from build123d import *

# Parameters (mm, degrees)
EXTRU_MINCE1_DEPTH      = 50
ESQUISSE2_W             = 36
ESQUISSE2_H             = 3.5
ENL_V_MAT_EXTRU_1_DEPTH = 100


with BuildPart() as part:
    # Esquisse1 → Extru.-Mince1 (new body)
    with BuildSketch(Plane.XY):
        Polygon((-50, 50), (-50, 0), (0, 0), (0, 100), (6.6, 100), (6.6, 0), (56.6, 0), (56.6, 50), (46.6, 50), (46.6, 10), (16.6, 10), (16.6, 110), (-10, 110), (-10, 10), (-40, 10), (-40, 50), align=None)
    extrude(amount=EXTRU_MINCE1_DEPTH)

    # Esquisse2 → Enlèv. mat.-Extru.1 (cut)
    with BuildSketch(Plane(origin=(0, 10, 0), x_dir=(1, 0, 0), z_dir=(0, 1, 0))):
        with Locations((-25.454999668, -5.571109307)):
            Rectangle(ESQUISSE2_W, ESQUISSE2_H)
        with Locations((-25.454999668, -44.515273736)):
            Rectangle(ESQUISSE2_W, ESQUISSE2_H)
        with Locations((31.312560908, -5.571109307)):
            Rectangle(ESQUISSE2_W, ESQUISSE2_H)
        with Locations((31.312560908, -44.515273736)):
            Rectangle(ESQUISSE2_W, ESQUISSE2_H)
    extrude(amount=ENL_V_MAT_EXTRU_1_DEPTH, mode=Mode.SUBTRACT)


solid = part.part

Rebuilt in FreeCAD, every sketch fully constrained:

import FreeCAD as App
import Part
import Sketcher

doc = App.newDocument("Part")
params = doc.addObject("Spreadsheet::Sheet", "Params")
for row, (alias, value) in enumerate([
    ("sketch1_width", "50 mm"),
    ("sketch1_width2", "10 mm"),
    ("sketch1_width3", "30 mm"),
    ("sketch1_height", "100 mm"),
    ("sketch1_height2", "40 mm"),
    ("pad1_length", "50 mm"),
    ("sketch2_width", "36 mm"),
    ("sketch2_height", "3.5 mm"),
    ("pocket1_length", "100 mm"),
], start=1):
    params.set(f"A{row}", alias)
    params.set(f"B{row}", "=" + value)
    params.setAlias(f"B{row}", alias)

body = doc.addObject("PartDesign::Body", "Body")

sketch1 = body.newObject("Sketcher::SketchObject", "Sketch")
sketch1.AttachmentSupport = (doc.getObject("XY_Plane"), [""])
sketch1.MapMode = "FlatFace"
sketch1.addGeometry([
    Part.LineSegment(App.Vector(-50, 50, 0), App.Vector(-50, 0, 0)),
    Part.LineSegment(App.Vector(-50, 0, 0), App.Vector(0, 0, 0)),
    Part.LineSegment(App.Vector(0, 0, 0), App.Vector(0, 100, 0)),
    Part.LineSegment(App.Vector(0, 100, 0), App.Vector(7, 100, 0)),
    Part.LineSegment(App.Vector(7, 100, 0), App.Vector(7, 0, 0)),
    Part.LineSegment(App.Vector(7, 0, 0), App.Vector(57, 0, 0)),
    Part.LineSegment(App.Vector(57, 0, 0), App.Vector(57, 50, 0)),
    Part.LineSegment(App.Vector(57, 50, 0), App.Vector(47, 50, 0)),
    Part.LineSegment(App.Vector(47, 50, 0), App.Vector(47, 10, 0)),
    Part.LineSegment(App.Vector(47, 10, 0), App.Vector(17, 10, 0)),
    Part.LineSegment(App.Vector(17, 10, 0), App.Vector(17, 110, 0)),
    Part.LineSegment(App.Vector(17, 110, 0), App.Vector(-10, 110, 0)),
    Part.LineSegment(App.Vector(-10, 110, 0), App.Vector(-10, 10, 0)),
    Part.LineSegment(App.Vector(-10, 10, 0), App.Vector(-40, 10, 0)),
    Part.LineSegment(App.Vector(-40, 10, 0), App.Vector(-40, 50, 0)),
    Part.LineSegment(App.Vector(-40, 50, 0), App.Vector(-50, 50, 0)),
], False)
sketch1.addConstraint([
    Sketcher.Constraint("Coincident", 0, 2, 1, 1),
    Sketcher.Constraint("Coincident", 1, 2, 2, 1),
    Sketcher.Constraint("Coincident", 2, 2, 3, 1),
    Sketcher.Constraint("Coincident", 3, 2, 4, 1),
    Sketcher.Constraint("Coincident", 4, 2, 5, 1),
    Sketcher.Constraint("Coincident", 5, 2, 6, 1),
    Sketcher.Constraint("Coincident", 6, 2, 7, 1),
    Sketcher.Constraint("Coincident", 7, 2, 8, 1),
    Sketcher.Constraint("Coincident", 8, 2, 9, 1),
    Sketcher.Constraint("Coincident", 9, 2, 10, 1),
    Sketcher.Constraint("Coincident", 10, 2, 11, 1),
    Sketcher.Constraint("Coincident", 11, 2, 12, 1),
    Sketcher.Constraint("Coincident", 12, 2, 13, 1),
    Sketcher.Constraint("Coincident", 13, 2, 14, 1),
    Sketcher.Constraint("Coincident", 14, 2, 15, 1),
    Sketcher.Constraint("Coincident", 15, 2, 0, 1),
    Sketcher.Constraint("Vertical", 0),
    Sketcher.Constraint("Horizontal", 1),
    Sketcher.Constraint("Vertical", 2),
    Sketcher.Constraint("Horizontal", 3),
    Sketcher.Constraint("Vertical", 4),
    Sketcher.Constraint("Horizontal", 5),
    Sketcher.Constraint("Vertical", 6),
    Sketcher.Constraint("Horizontal", 7),
    Sketcher.Constraint("Vertical", 8),
    Sketcher.Constraint("Horizontal", 9),
    Sketcher.Constraint("Vertical", 10),
    Sketcher.Constraint("Horizontal", 11),
    Sketcher.Constraint("Vertical", 12),
    Sketcher.Constraint("Horizontal", 13),
    Sketcher.Constraint("Vertical", 14),
    Sketcher.Constraint("Horizontal", 15),
    Sketcher.Constraint("Coincident", 1, 2, -1, 1),
    Sketcher.Constraint("PointOnObject", 4, 2, -1),
    Sketcher.Constraint("Horizontal", 9, 2, 12, 2),
    Sketcher.Constraint("Horizontal", 7, 2, 14, 2),
    Sketcher.Constraint("Equal", 1, 5),
    Sketcher.Constraint("Equal", 9, 13),
    Sketcher.Constraint("Equal", 7, 15),
    Sketcher.Constraint("Equal", 5, 0),
    Sketcher.Constraint("Equal", 4, 10),
    Sketcher.Constraint("DistanceX", 1, 1, 1, 2, 50.0),
    Sketcher.Constraint("DistanceX", 7, 2, 7, 1, 10.0),
    Sketcher.Constraint("DistanceX", 9, 2, 9, 1, 30.0),
    Sketcher.Constraint("DistanceY", 2, 1, 2, 2, 100.0),
    Sketcher.Constraint("DistanceY", 8, 2, 8, 1, 40.0),
    Sketcher.Constraint("DistanceX", 3, 1, 3, 2, 6.6),
])
sketch1.setExpression("Constraints[41]", "Params.sketch1_width")
sketch1.setExpression("Constraints[42]", "Params.sketch1_width2")
sketch1.setExpression("Constraints[43]", "Params.sketch1_width3")
sketch1.setExpression("Constraints[44]", "Params.sketch1_height")
sketch1.setExpression("Constraints[45]", "Params.sketch1_height2")
pad1 = body.newObject("PartDesign::Pad", "Pad")
pad1.Profile = sketch1
pad1.setExpression("Length", "Params.pad1_length")

sketch2 = body.newObject("Sketcher::SketchObject", "Sketch001")
sketch2.AttachmentSupport = (doc.getObject("XZ_Plane"), [""])
sketch2.MapMode = "FlatFace"
sketch2.AttachmentOffset = App.Placement(App.Vector(0, 0, -10), App.Rotation())
sketch2.addGeometry([
    Part.LineSegment(App.Vector(-43.5, 3.8, 0), App.Vector(-43.5, 7.3, 0)),
    Part.LineSegment(App.Vector(-43.5, 7.3, 0), App.Vector(-7.5, 7.3, 0)),
    Part.LineSegment(App.Vector(-7.5, 7.3, 0), App.Vector(-7.5, 3.8, 0)),
    Part.LineSegment(App.Vector(-7.5, 3.8, 0), App.Vector(-43.5, 3.8, 0)),
    Part.LineSegment(App.Vector(-43.5, 42.8, 0), App.Vector(-43.5, 46.3, 0)),
    Part.LineSegment(App.Vector(-43.5, 46.3, 0), App.Vector(-7.5, 46.3, 0)),
    Part.LineSegment(App.Vector(-7.5, 46.3, 0), App.Vector(-7.5, 42.8, 0)),
    Part.LineSegment(App.Vector(-7.5, 42.8, 0), App.Vector(-43.5, 42.8, 0)),
    Part.LineSegment(App.Vector(13.3, 3.8, 0), App.Vector(13.3, 7.3, 0)),
    Part.LineSegment(App.Vector(13.3, 7.3, 0), App.Vector(49.3, 7.3, 0)),
    Part.LineSegment(App.Vector(49.3, 7.3, 0), App.Vector(49.3, 3.8, 0)),
    Part.LineSegment(App.Vector(49.3, 3.8, 0), App.Vector(13.3, 3.8, 0)),
    Part.LineSegment(App.Vector(13.3, 42.8, 0), App.Vector(13.3, 46.3, 0)),
    Part.LineSegment(App.Vector(13.3, 46.3, 0), App.Vector(49.3, 46.3, 0)),
    Part.LineSegment(App.Vector(49.3, 46.3, 0), App.Vector(49.3, 42.8, 0)),
    Part.LineSegment(App.Vector(49.3, 42.8, 0), App.Vector(13.3, 42.8, 0)),
], False)
sketch2.addConstraint([
    Sketcher.Constraint("Coincident", 0, 2, 1, 1),
    Sketcher.Constraint("Coincident", 1, 2, 2, 1),
    Sketcher.Constraint("Coincident", 2, 2, 3, 1),
    Sketcher.Constraint("Coincident", 3, 2, 0, 1),
    Sketcher.Constraint("Coincident", 4, 2, 5, 1),
    Sketcher.Constraint("Coincident", 5, 2, 6, 1),
    Sketcher.Constraint("Coincident", 6, 2, 7, 1),
    Sketcher.Constraint("Coincident", 7, 2, 4, 1),
    Sketcher.Constraint("Coincident", 8, 2, 9, 1),
    Sketcher.Constraint("Coincident", 9, 2, 10, 1),
    Sketcher.Constraint("Coincident", 10, 2, 11, 1),
    Sketcher.Constraint("Coincident", 11, 2, 8, 1),
    Sketcher.Constraint("Coincident", 12, 2, 13, 1),
    Sketcher.Constraint("Coincident", 13, 2, 14, 1),
    Sketcher.Constraint("Coincident", 14, 2, 15, 1),
    Sketcher.Constraint("Coincident", 15, 2, 12, 1),
    Sketcher.Constraint("Vertical", 0),
    Sketcher.Constraint("Horizontal", 1),
    Sketcher.Constraint("Vertical", 2),
    Sketcher.Constraint("Horizontal", 3),
    Sketcher.Constraint("Vertical", 4),
    Sketcher.Constraint("Horizontal", 5),
    Sketcher.Constraint("Vertical", 6),
    Sketcher.Constraint("Horizontal", 7),
    Sketcher.Constraint("Vertical", 8),
    Sketcher.Constraint("Horizontal", 9),
    Sketcher.Constraint("Vertical", 10),
    Sketcher.Constraint("Horizontal", 11),
    Sketcher.Constraint("Vertical", 12),
    Sketcher.Constraint("Horizontal", 13),
    Sketcher.Constraint("Vertical", 14),
    Sketcher.Constraint("Horizontal", 15),
    Sketcher.Constraint("Horizontal", 1, 2, 8, 2),
    Sketcher.Constraint("Horizontal", 3, 2, 10, 2),
    Sketcher.Constraint("Horizontal", 5, 2, 12, 2),
    Sketcher.Constraint("Horizontal", 7, 2, 14, 2),
    Sketcher.Constraint("Vertical", 3, 2, 4, 2),
    Sketcher.Constraint("Vertical", 2, 2, 5, 2),
    Sketcher.Constraint("Vertical", 11, 2, 12, 2),
    Sketcher.Constraint("Vertical", 10, 2, 13, 2),
    Sketcher.Constraint("Equal", 7, 9),
    Sketcher.Constraint("Equal", 2, 4),
    Sketcher.Constraint("DistanceX", 1, 1, 1, 2, 36.0),
    Sketcher.Constraint("DistanceY", 0, 1, 0, 2, 3.5),
    Sketcher.Constraint("DistanceX", 0, 2, -1, 1, 43.455),
    Sketcher.Constraint("DistanceY", -1, 1, 0, 2, 7.321109),
    Sketcher.Constraint("DistanceX", -1, 1, 8, 2, 13.312561),
    Sketcher.Constraint("DistanceY", -1, 1, 4, 2, 46.265274),
])
sketch2.setExpression("Constraints[42]", "Params.sketch2_width")
sketch2.setExpression("Constraints[43]", "Params.sketch2_height")
pocket1 = body.newObject("PartDesign::Pocket", "Pocket")
pocket1.Profile = sketch2
pocket1.setExpression("Length", "Params.pocket1_length")

doc.recompute()
